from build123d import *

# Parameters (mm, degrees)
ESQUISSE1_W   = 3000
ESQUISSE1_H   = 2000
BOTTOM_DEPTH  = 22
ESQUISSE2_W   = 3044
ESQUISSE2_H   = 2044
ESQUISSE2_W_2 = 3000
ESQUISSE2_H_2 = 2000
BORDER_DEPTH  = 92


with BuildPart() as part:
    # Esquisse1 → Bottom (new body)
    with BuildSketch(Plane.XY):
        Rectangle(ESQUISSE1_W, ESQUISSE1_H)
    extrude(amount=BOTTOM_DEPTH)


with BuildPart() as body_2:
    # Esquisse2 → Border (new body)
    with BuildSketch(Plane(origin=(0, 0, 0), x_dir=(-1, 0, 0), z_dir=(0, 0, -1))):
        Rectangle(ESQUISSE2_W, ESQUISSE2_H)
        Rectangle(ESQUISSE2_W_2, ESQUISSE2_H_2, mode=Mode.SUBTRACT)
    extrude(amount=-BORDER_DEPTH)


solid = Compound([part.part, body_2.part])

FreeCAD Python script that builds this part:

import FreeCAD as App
import Part
import Sketcher

V = App.Vector
Q = App.Units.Quantity

doc = App.newDocument("Part")
params = doc.addObject("Spreadsheet::Sheet", "Params")
for row, (alias, value) in enumerate([
    ("sketch1_width", "3000 mm"),
    ("sketch1_height", "2000 mm"),
    ("pad1_length", "22 mm"),
    ("sketch2_width", "3044 mm"),
    ("sketch2_width2", "3000 mm"),
    ("sketch2_height", "2044 mm"),
    ("sketch2_height2", "2000 mm"),
    ("pad2_length", "92 mm"),
], start=1):
    params.set(f"A{row}", alias)
    params.set(f"B{row}", "=" + value)
    params.setAlias(f"B{row}", alias)

body = doc.addObject("PartDesign::Body", "Body")

sketch1 = doc.addObject("Sketcher::SketchObject", "Sketch")
body.addObject(sketch1)
sketch1.AttachmentSupport = (doc.XY_Plane, [""])
sketch1.MapMode = "FlatFace"
sketch1.addGeometry([
    Part.LineSegment(V(-1500, 1000, 0), V(-1500, -1000, 0)),
    Part.LineSegment(V(-1500, -1000, 0), V(1500, -1000, 0)),
    Part.LineSegment(V(1500, -1000, 0), V(1500, 1000, 0)),
    Part.LineSegment(V(1500, 1000, 0), V(-1500, 1000, 0)),
], False)
sketch1.addConstraint([
    Sketcher.Constraint("Coincident", 0, 2, 1, 1),
    Sketcher.Constraint("Coincident", 1, 2, 2, 1),
    Sketcher.Constraint("Coincident", 2, 2, 3, 1),
    Sketcher.Constraint("Coincident", 3, 2, 0, 1),
    Sketcher.Constraint("Vertical", 0),
    Sketcher.Constraint("Horizontal", 1),
    Sketcher.Constraint("Vertical", 2),
    Sketcher.Constraint("Horizontal", 3),
    Sketcher.Constraint("Symmetric", 0, 2, 2, 2, -1, 1),
    Sketcher.Constraint("DistanceX", 1, 1, 1, 2, Q("3000 mm")),
    Sketcher.Constraint("DistanceY", 0, 2, 0, 1, Q("2000 mm")),
])
sketch1.setExpression("Constraints[9]", "Params.sketch1_width")
sketch1.setExpression("Constraints[10]", "Params.sketch1_height")
pad1 = doc.addObject("PartDesign::Pad", "Pad")
body.addObject(pad1)
pad1.Profile = sketch1
pad1.setExpression("Length", "Params.pad1_length")
body2 = doc.addObject("PartDesign::Body", "Body001")

sketch2 = doc.addObject("Sketcher::SketchObject", "Sketch001")
body2.addObject(sketch2)
sketch2.AttachmentSupport = (doc.getObject("XY_Plane001"), [""])
sketch2.MapMode = "FlatFace"
sketch2.addGeometry([
    Part.LineSegment(V(1522, 1022, 0), V(1522, -1022, 0)),
    Part.LineSegment(V(1522, -1022, 0), V(-1522, -1022, 0)),
    Part.LineSegment(V(-1522, -1022, 0), V(-1522, 1022, 0)),
    Part.LineSegment(V(-1522, 1022, 0), V(1522, 1022, 0)),
    Part.LineSegment(V(-1500, -1000, 0), V(1500, -1000, 0)),
    Part.LineSegment(V(1500, -1000, 0), V(1500, 1000, 0)),
    Part.LineSegment(V(1500, 1000, 0), V(-1500, 1000, 0)),
    Part.LineSegment(V(-1500, 1000, 0), V(-1500, -1000, 0)),
], False)
sketch2.addConstraint([
    Sketcher.Constraint("Coincident", 0, 2, 1, 1),
    Sketcher.Constraint("Coincident", 1, 2, 2, 1),
    Sketcher.Constraint("Coincident", 2, 2, 3, 1),
    Sketcher.Constraint("Coincident", 3, 2, 0, 1),
    Sketcher.Constraint("Coincident", 4, 2, 5, 1),
    Sketcher.Constraint("Coincident", 5, 2, 6, 1),
    Sketcher.Constraint("Coincident", 6, 2, 7, 1),
    Sketcher.Constraint("Coincident", 7, 2, 4, 1),
    Sketcher.Constraint("Vertical", 0),
    Sketcher.Constraint("Horizontal", 1),
    Sketcher.Constraint("Vertical", 2),
    Sketcher.Constraint("Horizontal", 3),
    Sketcher.Constraint("Horizontal", 4),
    Sketcher.Constraint("Vertical", 5),
    Sketcher.Constraint("Horizontal", 6),
    Sketcher.Constraint("Vertical", 7),
    Sketcher.Constraint("Symmetric", 0, 2, 2, 2, -1, 1),
    Sketcher.Constraint("Symmetric", 4, 2, 6, 2, -1, 1),
    Sketcher.Constraint("DistanceX", 1, 2, 1, 1, Q("3044 mm")),
    Sketcher.Constraint("DistanceX", 4, 1, 4, 2, Q("3000 mm")),
    Sketcher.Constraint("DistanceY", 0, 2, 0, 1, Q("2044 mm")),
    Sketcher.Constraint("DistanceY", 5, 1, 5, 2, Q("2000 mm")),
])
sketch2.setExpression("Constraints[18]", "Params.sketch2_width")
sketch2.setExpression("Constraints[19]", "Params.sketch2_width2")
sketch2.setExpression("Constraints[20]", "Params.sketch2_height")
sketch2.setExpression("Constraints[21]", "Params.sketch2_height2")
pad2 = doc.addObject("PartDesign::Pad", "Pad001")
body2.addObject(pad2)
pad2.Profile = sketch2
pad2.setExpression("Length", "Params.pad2_length")

doc.recompute()
